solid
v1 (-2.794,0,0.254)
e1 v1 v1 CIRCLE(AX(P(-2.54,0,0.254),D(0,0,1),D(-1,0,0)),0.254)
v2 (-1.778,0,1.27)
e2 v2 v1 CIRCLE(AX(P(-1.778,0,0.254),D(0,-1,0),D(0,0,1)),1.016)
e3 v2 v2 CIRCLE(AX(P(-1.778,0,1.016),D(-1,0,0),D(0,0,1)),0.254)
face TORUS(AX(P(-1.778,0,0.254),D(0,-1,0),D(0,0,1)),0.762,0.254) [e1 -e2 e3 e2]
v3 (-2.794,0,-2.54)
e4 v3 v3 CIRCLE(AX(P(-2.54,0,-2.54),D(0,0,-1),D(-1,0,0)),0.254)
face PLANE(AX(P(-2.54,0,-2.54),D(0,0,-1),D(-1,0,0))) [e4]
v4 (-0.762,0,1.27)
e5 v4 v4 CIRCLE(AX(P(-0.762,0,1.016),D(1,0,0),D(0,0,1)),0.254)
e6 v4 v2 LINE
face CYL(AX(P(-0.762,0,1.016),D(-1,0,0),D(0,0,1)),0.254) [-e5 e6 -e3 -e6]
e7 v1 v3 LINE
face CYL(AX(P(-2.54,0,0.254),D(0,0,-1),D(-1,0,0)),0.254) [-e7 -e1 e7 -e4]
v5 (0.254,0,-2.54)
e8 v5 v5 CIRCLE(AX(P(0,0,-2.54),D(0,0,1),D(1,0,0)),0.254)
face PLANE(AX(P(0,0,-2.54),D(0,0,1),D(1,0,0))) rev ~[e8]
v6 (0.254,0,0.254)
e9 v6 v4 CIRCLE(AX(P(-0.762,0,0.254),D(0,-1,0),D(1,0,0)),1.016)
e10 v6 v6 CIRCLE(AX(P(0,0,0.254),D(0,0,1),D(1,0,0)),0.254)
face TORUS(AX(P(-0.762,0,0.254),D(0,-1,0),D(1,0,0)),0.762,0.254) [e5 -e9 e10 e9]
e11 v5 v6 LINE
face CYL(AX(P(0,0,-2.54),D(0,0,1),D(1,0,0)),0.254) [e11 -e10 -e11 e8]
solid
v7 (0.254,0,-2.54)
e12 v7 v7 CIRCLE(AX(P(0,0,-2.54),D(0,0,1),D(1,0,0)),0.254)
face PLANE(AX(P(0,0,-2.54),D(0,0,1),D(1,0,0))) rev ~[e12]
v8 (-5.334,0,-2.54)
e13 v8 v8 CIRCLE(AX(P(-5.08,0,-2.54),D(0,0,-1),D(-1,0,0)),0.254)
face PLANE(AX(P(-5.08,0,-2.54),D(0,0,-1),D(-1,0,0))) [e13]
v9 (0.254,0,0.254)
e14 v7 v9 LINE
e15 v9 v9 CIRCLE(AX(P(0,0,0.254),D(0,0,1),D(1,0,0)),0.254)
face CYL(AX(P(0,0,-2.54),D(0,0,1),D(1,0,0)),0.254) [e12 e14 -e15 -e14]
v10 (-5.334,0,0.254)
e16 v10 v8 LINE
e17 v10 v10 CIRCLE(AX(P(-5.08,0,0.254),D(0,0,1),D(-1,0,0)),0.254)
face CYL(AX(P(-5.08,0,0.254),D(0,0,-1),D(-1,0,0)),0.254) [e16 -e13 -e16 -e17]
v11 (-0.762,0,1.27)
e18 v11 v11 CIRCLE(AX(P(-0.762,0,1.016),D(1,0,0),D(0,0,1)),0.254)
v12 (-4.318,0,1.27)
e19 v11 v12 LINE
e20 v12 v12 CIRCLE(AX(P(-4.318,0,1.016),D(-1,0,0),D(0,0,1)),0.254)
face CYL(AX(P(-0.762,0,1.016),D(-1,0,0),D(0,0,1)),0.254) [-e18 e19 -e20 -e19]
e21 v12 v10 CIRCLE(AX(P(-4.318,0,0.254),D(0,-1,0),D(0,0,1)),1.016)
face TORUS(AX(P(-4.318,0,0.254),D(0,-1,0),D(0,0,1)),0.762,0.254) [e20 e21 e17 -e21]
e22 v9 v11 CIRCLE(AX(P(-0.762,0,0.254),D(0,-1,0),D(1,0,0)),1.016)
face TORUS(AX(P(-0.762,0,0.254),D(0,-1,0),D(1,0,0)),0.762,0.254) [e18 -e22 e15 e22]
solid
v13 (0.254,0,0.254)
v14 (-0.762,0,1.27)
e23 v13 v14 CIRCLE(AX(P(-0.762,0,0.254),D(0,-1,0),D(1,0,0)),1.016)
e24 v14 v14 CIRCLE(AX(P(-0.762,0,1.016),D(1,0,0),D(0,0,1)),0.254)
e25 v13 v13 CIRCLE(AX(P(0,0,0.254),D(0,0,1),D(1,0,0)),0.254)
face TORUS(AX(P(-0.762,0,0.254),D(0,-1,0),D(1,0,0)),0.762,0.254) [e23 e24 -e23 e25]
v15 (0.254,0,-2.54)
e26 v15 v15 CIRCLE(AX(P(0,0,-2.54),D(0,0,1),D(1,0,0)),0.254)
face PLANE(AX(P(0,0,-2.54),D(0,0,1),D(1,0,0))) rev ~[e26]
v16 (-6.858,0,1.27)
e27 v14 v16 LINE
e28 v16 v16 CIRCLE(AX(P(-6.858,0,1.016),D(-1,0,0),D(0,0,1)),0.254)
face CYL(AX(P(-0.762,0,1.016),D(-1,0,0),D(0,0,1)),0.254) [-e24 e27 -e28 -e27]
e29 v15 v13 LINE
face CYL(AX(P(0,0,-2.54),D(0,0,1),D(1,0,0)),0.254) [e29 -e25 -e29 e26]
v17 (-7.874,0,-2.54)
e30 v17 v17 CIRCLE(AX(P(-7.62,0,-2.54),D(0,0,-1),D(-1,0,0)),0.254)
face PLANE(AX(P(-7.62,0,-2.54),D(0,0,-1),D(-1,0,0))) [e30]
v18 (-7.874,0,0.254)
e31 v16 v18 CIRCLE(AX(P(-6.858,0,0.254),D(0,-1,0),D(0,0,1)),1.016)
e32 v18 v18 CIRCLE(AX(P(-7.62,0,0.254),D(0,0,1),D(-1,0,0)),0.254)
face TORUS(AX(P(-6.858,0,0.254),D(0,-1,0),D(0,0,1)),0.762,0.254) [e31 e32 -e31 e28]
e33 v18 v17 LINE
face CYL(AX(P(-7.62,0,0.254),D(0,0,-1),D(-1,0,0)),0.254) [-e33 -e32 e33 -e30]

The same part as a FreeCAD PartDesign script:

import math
import FreeCAD as App
import Part
import Sketcher
from FreeCAD import Vector
Q = App.Units.Quantity

doc = App.newDocument("Part")
params = doc.addObject("Spreadsheet::Sheet", "Params")
for row, (alias, value) in enumerate([
    ("sketch1_diameter", "0.02 in"),
    ("sketch2_radius", "0.03 in"),
    ("sketch2_width", "0.14 in"),
    ("sketch2_height", "0.11 in"),
    ("sketch3_diameter", "0.02 in"),
    ("sketch4_radius", "0.03 in"),
    ("sketch4_width", "0.24 in"),
    ("sketch4_height", "0.11 in"),
    ("sketch5_diameter", "0.02 in"),
    ("sketch6_radius", "0.03 in"),
    ("sketch6_width", "0.04 in"),
    ("sketch6_height", "0.11 in"),
], start=1):
    params.set(f"A{row}", alias)
    params.set(f"B{row}", "=" + value)
    params.setAlias(f"B{row}", alias)

body = doc.addObject("PartDesign::Body", "Body")

# Sketch on XY plane
sketch1 = doc.addObject("Sketcher::SketchObject", "Sketch")
body.addObject(sketch1)
sketch1.AttachmentSupport = (doc.XY_Plane, [""])
sketch1.MapMode = "FlatFace"
sketch1.AttachmentOffset = App.Placement(Vector(0, 0, -0.1 * 25.4), App.Rotation())
sketch1.addGeometry(Part.Circle(Vector(0, 0, 0), Vector(0, 0, 1), 0.254), False)
sketch1.addConstraint([
    Sketcher.Constraint("Coincident", 0, 3, -1, 1),
    Sketcher.Constraint("Diameter", 0, Q("0.02 in")),
])
sketch1.setExpression("Constraints[1]", "Params.sketch1_diameter")

# Sketch on XZ plane
sketch2 = doc.addObject("Sketcher::SketchObject", "Sketch001")
body.addObject(sketch2)
sketch2.AttachmentSupport = (doc.XZ_Plane, [""])
sketch2.MapMode = "FlatFace"
sketch2.addGeometry([
    Part.LineSegment(Vector(0, -2.54, 0), Vector(0, 0.254, 0)),  # 0
    Part.ArcOfCircle(Part.Circle(Vector(-0.762, 0.254, 0), Vector(0, 0, 1), 0.762), math.radians(0), math.radians(90)),  # 1
    Part.LineSegment(Vector(-0.762, 1.016, 0), Vector(-4.318, 1.016, 0)),  # 2
    Part.ArcOfCircle(Part.Circle(Vector(-4.318, 0.254, 0), Vector(0, 0, 1), 0.762), math.radians(90), math.radians(180)),  # 3
    Part.LineSegment(Vector(-5.08, 0.254, 0), Vector(-5.08, -2.54, 0)),  # 4
], False)
sketch2.addConstraint([
    Sketcher.Constraint("Tangent", 0, 2, 1, 1),
    Sketcher.Constraint("Tangent", 1, 2, 2, 1),
    Sketcher.Constraint("Tangent", 2, 2, 3, 1),
    Sketcher.Constraint("Tangent", 3, 2, 4, 1),
    Sketcher.Constraint("Vertical", 0),
    Sketcher.Constraint("Horizontal", 2),
    Sketcher.Constraint("Vertical", 4),
    Sketcher.Constraint("Equal", 1, 3),
    Sketcher.Constraint("PointOnObject", 0, 1, -2),
    Sketcher.Constraint("Horizontal", 0, 1, 4, 2),
    Sketcher.Constraint("Radius", 1, Q("0.03 in")),
    Sketcher.Constraint("DistanceX", 2, 2, 2, 1, Q("0.14 in")),
    Sketcher.Constraint("DistanceY", 0, 1, 0, 2, Q("0.11 in")),
    Sketcher.Constraint("DistanceY", 0, 1, -1, 1, Q("0.1 in")),
])
sketch2.setExpression("Constraints[10]", "Params.sketch2_radius")
sketch2.setExpression("Constraints[11]", "Params.sketch2_width")
sketch2.setExpression("Constraints[12]", "Params.sketch2_height")
doc.recompute()

additivepipe = doc.addObject("PartDesign::AdditivePipe", "AdditivePipe")
body.addObject(additivepipe)
additivepipe.Profile = sketch1
additivepipe.Spine = (sketch2, ["Edge1", "Edge2", "Edge3", "Edge4", "Edge5"])
body2 = doc.addObject("PartDesign::Body", "Body001")

# Sketch on XY plane
sketch3 = doc.addObject("Sketcher::SketchObject", "Sketch002")
body2.addObject(sketch3)
sketch3.AttachmentSupport = (doc.getObject("XY_Plane001"), [""])
sketch3.MapMode = "FlatFace"
sketch3.AttachmentOffset = App.Placement(Vector(0, 0, -0.1 * 25.4), App.Rotation())
sketch3.addGeometry(Part.Circle(Vector(0, 0, 0), Vector(0, 0, 1), 0.254), False)
sketch3.addConstraint([
    Sketcher.Constraint("Coincident", 0, 3, -1, 1),
    Sketcher.Constraint("Diameter", 0, Q("0.02 in")),
])
sketch3.setExpression("Constraints[1]", "Params.sketch3_diameter")

# Sketch on XZ plane
sketch4 = doc.addObject("Sketcher::SketchObject", "Sketch003")
body2.addObject(sketch4)
sketch4.AttachmentSupport = (doc.getObject("XZ_Plane001"), [""])
sketch4.MapMode = "FlatFace"
sketch4.addGeometry([
    Part.LineSegment(Vector(0, -2.54, 0), Vector(0, 0.254, 0)),  # 0
    Part.ArcOfCircle(Part.Circle(Vector(-0.762, 0.254, 0), Vector(0, 0, 1), 0.762), math.radians(0), math.radians(90)),  # 1
    Part.LineSegment(Vector(-0.762, 1.016, 0), Vector(-6.858, 1.016, 0)),  # 2
    Part.ArcOfCircle(Part.Circle(Vector(-6.858, 0.254, 0), Vector(0, 0, 1), 0.762), math.radians(90), math.radians(180)),  # 3
    Part.LineSegment(Vector(-7.62, 0.254, 0), Vector(-7.62, -2.54, 0)),  # 4
], False)
sketch4.addConstraint([
    Sketcher.Constraint("Tangent", 0, 2, 1, 1),
    Sketcher.Constraint("Tangent", 1, 2, 2, 1),
    Sketcher.Constraint("Tangent", 2, 2, 3, 1),
    Sketcher.Constraint("Tangent", 3, 2, 4, 1),
    Sketcher.Constraint("Vertical", 0),
    Sketcher.Constraint("Horizontal", 2),
    Sketcher.Constraint("Vertical", 4),
    Sketcher.Constraint("Equal", 1, 3),
    Sketcher.Constraint("PointOnObject", 0, 1, -2),
    Sketcher.Constraint("Horizontal", 0, 1, 4, 2),
    Sketcher.Constraint("Radius", 1, Q("0.03 in")),
    Sketcher.Constraint("DistanceX", 2, 2, 2, 1, Q("0.24 in")),
    Sketcher.Constraint("DistanceY", 0, 1, 0, 2, Q("0.11 in")),
    Sketcher.Constraint("DistanceY", 0, 1, -1, 1, Q("0.1 in")),
])
sketch4.setExpression("Constraints[10]", "Params.sketch4_radius")
sketch4.setExpression("Constraints[11]", "Params.sketch4_width")
sketch4.setExpression("Constraints[12]", "Params.sketch4_height")
doc.recompute()

additivepipe2 = doc.addObject("PartDesign::AdditivePipe", "AdditivePipe001")
body2.addObject(additivepipe2)
additivepipe2.Profile = sketch3
additivepipe2.Spine = (sketch4, ["Edge1", "Edge2", "Edge3", "Edge4", "Edge5"])
body3 = doc.addObject("PartDesign::Body", "Body002")

# Sketch on XY plane
sketch5 = doc.addObject("Sketcher::SketchObject", "Sketch004")
body3.addObject(sketch5)
sketch5.AttachmentSupport = (doc.getObject("XY_Plane002"), [""])
sketch5.MapMode = "FlatFace"
sketch5.AttachmentOffset = App.Placement(Vector(0, 0, -0.1 * 25.4), App.Rotation())
sketch5.addGeometry(Part.Circle(Vector(0, 0, 0), Vector(0, 0, 1), 0.254), False)
sketch5.addConstraint([
    Sketcher.Constraint("Coincident", 0, 3, -1, 1),
    Sketcher.Constraint("Diameter", 0, Q("0.02 in")),
])
sketch5.setExpression("Constraints[1]", "Params.sketch5_diameter")

# Sketch on XZ plane
sketch6 = doc.addObject("Sketcher::SketchObject", "Sketch005")
body3.addObject(sketch6)
sketch6.AttachmentSupport = (doc.getObject("XZ_Plane002"), [""])
sketch6.MapMode = "FlatFace"
sketch6.addGeometry([
    Part.LineSegment(Vector(0, -2.54, 0), Vector(0, 0.254, 0)),  # 0
    Part.ArcOfCircle(Part.Circle(Vector(-0.762, 0.254, 0), Vector(0, 0, 1), 0.762), math.radians(0), math.radians(90)),  # 1
    Part.LineSegment(Vector(-0.762, 1.016, 0), Vector(-1.778, 1.016, 0)),  # 2
    Part.ArcOfCircle(Part.Circle(Vector(-1.778, 0.254, 0), Vector(0, 0, 1), 0.762), math.radians(90), math.radians(180)),  # 3
    Part.LineSegment(Vector(-2.54, 0.254, 0), Vector(-2.54, -2.54, 0)),  # 4
], False)
sketch6.addConstraint([
    Sketcher.Constraint("Tangent", 0, 2, 1, 1),
    Sketcher.Constraint("Tangent", 1, 2, 2, 1),
    Sketcher.Constraint("Tangent", 2, 2, 3, 1),
    Sketcher.Constraint("Tangent", 3, 2, 4, 1),
    Sketcher.Constraint("Vertical", 0),
    Sketcher.Constraint("Horizontal", 2),
    Sketcher.Constraint("Vertical", 4),
    Sketcher.Constraint("Equal", 1, 3),
    Sketcher.Constraint("PointOnObject", 0, 1, -2),
    Sketcher.Constraint("Horizontal", 0, 1, 4, 2),
    Sketcher.Constraint("Radius", 1, Q("0.03 in")),
    Sketcher.Constraint("DistanceX", 2, 2, 2, 1, Q("0.04 in")),
    Sketcher.Constraint("DistanceY", 0, 1, 0, 2, Q("0.11 in")),
    Sketcher.Constraint("DistanceY", 0, 1, -1, 1, Q("0.1 in")),
])
sketch6.setExpression("Constraints[10]", "Params.sketch6_radius")
sketch6.setExpression("Constraints[11]", "Params.sketch6_width")
sketch6.setExpression("Constraints[12]", "Params.sketch6_height")
doc.recompute()

additivepipe3 = doc.addObject("PartDesign::AdditivePipe", "AdditivePipe002")
body3.addObject(additivepipe3)
additivepipe3.Profile = sketch5
additivepipe3.Spine = (sketch6, ["Edge1", "Edge2", "Edge3", "Edge4", "Edge5"])

doc.recompute()
